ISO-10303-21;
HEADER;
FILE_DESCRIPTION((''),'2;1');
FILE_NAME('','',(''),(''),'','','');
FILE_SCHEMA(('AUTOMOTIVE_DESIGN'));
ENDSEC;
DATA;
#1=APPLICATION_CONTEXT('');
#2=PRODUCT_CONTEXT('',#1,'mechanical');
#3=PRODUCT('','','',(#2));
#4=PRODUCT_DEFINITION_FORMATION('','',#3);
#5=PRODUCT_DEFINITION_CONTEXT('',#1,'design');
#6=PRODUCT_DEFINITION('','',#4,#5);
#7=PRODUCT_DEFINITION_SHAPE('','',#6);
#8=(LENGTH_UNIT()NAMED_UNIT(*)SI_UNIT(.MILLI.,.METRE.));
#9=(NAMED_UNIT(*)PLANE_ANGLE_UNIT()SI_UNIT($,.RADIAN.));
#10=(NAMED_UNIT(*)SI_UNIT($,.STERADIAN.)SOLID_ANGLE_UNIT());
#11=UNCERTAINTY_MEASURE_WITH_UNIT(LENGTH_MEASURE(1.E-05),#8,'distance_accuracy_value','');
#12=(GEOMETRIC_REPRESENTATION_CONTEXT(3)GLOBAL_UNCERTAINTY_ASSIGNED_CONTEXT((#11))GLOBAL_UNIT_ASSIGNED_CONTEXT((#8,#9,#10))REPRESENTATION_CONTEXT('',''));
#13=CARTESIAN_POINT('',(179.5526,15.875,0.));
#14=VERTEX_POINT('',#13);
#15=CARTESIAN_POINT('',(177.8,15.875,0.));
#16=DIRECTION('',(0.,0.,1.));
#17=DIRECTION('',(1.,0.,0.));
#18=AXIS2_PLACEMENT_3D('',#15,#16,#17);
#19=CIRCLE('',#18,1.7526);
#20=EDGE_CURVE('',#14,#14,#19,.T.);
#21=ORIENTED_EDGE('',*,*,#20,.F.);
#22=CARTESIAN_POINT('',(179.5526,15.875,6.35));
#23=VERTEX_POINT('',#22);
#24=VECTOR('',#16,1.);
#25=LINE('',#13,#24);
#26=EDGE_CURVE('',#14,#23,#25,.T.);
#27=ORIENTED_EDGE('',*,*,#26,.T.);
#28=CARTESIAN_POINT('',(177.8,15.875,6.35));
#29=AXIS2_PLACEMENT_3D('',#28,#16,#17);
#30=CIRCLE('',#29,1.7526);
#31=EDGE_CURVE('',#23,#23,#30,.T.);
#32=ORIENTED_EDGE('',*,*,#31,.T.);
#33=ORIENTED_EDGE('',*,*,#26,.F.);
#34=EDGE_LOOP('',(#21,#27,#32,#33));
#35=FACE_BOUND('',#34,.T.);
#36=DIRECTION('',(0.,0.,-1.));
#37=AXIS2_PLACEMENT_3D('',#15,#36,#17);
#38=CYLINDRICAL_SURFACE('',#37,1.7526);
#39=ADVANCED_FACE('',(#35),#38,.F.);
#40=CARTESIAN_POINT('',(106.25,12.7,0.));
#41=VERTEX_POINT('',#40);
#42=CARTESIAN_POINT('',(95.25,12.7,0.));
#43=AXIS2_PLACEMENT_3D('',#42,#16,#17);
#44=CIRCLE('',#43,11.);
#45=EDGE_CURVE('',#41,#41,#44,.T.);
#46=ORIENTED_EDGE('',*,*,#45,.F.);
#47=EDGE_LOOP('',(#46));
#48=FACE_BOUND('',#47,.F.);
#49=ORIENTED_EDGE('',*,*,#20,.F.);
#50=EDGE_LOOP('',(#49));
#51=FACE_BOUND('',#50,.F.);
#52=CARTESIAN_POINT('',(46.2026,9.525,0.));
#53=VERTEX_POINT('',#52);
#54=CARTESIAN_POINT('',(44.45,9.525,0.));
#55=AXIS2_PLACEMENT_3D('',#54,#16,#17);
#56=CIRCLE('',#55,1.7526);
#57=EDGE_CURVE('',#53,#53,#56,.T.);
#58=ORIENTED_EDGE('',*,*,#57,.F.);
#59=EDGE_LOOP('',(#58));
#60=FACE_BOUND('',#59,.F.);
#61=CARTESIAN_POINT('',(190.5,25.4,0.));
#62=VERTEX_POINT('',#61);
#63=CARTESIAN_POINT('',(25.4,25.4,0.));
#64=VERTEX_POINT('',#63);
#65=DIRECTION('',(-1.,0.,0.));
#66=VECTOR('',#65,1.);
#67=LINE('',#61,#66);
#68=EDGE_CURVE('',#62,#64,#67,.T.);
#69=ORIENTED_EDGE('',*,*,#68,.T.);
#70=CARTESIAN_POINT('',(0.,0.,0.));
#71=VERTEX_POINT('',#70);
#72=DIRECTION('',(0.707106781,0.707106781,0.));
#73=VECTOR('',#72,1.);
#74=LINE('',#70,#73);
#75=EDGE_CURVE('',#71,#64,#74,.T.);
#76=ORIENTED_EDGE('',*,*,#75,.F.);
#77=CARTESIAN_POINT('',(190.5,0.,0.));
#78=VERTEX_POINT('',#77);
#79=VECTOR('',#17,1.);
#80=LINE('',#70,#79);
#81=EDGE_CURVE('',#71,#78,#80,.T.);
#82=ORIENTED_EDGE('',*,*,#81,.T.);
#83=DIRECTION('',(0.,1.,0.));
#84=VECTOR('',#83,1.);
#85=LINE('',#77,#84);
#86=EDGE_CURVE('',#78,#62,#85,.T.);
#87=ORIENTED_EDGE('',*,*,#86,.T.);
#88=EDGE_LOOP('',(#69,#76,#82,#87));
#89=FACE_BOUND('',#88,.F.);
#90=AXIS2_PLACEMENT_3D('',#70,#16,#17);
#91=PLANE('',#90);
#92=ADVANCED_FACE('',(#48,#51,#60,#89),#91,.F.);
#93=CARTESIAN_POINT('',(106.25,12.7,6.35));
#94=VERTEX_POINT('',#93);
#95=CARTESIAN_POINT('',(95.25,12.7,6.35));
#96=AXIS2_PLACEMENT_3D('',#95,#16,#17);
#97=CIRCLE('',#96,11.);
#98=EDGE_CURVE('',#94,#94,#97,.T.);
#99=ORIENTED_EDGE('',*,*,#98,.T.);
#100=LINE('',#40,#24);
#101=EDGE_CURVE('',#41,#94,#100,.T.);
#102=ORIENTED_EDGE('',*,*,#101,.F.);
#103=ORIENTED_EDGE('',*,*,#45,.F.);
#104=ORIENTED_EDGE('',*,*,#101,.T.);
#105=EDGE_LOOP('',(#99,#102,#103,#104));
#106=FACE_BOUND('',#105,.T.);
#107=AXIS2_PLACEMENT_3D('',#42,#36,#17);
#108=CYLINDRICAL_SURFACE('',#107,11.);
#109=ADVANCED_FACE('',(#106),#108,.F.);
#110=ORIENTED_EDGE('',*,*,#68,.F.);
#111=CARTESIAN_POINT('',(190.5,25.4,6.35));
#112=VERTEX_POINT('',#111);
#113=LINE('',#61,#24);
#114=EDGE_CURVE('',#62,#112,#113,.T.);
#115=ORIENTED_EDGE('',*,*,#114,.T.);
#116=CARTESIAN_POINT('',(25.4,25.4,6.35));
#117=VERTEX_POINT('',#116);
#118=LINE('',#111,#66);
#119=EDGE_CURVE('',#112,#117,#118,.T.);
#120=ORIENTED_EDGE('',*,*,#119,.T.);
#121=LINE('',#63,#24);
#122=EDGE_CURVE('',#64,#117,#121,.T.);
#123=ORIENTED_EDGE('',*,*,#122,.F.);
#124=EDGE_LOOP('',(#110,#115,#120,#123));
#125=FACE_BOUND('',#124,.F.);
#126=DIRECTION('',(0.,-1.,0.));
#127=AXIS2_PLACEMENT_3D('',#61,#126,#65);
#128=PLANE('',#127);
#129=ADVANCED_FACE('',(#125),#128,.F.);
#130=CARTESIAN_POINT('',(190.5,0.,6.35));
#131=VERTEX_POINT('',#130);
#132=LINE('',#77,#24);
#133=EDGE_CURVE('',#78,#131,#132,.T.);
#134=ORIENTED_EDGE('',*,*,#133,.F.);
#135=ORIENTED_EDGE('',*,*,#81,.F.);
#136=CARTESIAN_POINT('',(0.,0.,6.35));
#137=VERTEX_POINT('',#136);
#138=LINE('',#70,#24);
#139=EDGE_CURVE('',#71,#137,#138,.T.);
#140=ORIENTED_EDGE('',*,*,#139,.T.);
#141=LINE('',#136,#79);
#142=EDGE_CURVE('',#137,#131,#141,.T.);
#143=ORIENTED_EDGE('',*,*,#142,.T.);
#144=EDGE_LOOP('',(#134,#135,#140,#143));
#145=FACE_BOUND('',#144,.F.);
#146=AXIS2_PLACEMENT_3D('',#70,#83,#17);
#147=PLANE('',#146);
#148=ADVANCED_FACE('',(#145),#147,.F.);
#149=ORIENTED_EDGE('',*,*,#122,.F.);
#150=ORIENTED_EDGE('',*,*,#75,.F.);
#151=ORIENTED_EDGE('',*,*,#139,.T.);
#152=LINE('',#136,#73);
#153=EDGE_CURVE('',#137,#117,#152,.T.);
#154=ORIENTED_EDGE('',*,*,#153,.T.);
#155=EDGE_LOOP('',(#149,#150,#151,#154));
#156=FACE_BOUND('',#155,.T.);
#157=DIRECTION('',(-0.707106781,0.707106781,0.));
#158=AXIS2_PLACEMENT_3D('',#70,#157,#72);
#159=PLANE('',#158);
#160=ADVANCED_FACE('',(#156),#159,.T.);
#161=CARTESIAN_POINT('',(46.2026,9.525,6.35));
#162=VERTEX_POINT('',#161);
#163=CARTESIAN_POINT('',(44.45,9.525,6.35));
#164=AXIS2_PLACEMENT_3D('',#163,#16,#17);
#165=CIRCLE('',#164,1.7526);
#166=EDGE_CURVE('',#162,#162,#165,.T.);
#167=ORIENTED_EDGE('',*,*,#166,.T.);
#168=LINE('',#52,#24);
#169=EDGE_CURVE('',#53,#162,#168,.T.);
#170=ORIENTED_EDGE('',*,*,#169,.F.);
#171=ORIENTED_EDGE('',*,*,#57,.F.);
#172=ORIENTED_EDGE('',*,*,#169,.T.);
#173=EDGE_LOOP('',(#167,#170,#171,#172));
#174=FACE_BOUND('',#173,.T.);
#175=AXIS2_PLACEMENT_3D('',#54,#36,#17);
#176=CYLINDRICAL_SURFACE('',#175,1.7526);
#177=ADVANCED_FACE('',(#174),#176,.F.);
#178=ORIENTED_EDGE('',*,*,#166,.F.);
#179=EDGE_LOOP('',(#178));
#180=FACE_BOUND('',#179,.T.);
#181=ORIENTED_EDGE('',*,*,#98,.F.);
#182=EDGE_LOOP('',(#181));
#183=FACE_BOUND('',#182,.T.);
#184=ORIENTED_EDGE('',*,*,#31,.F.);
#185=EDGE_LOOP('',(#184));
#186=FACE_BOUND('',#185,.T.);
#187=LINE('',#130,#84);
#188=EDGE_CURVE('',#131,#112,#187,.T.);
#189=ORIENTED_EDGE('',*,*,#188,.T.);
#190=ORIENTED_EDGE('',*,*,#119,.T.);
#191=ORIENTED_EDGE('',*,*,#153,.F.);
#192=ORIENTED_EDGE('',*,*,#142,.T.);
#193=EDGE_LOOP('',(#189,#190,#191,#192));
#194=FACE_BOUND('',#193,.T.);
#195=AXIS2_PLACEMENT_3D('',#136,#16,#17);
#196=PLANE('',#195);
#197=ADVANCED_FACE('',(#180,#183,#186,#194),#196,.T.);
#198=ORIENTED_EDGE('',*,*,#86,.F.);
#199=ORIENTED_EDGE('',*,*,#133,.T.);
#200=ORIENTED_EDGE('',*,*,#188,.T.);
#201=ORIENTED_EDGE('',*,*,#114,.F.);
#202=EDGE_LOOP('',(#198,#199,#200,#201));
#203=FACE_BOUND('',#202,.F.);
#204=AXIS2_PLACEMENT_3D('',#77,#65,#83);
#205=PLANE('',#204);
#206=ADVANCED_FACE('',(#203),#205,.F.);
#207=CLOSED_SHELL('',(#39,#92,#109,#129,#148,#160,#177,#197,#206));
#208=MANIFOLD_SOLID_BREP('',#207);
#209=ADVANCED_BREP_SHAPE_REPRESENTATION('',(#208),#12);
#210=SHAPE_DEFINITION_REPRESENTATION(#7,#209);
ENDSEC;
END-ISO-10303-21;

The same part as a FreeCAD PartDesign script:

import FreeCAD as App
import Part
import Sketcher

V = App.Vector
Q = App.Units.Quantity


def add_polygon(sketch, points):
    """Adds a closed chain of lines whose ends are joined by coincident constraints."""
    first, n = sketch.GeometryCount, len(points)
    for a, b in zip(points, points[1:] + points[:1]):
        sketch.addGeometry(Part.LineSegment(App.Vector(*a, 0), App.Vector(*b, 0)), False)
    for i in range(n):
        sketch.addConstraint(Sketcher.Constraint("Coincident", first + i, 2, first + (i + 1) % n, 1))

doc = App.newDocument("Part")
body = doc.addObject("PartDesign::Body", "Body")

sketch1 = doc.addObject("Sketcher::SketchObject", "Sketch")
body.addObject(sketch1)
sketch1.AttachmentSupport = (doc.XY_Plane, [""])
sketch1.MapMode = "FlatFace"
add_polygon(sketch1, [(25.4, 25.4), (0, 0), (190.5, 0), (190.5, 25.4)])
sketch1.addGeometry(Part.Circle(V(44.5, 9.5, 0), V(0, 0, 1), 1.8), False)
sketch1.addGeometry(Part.Circle(V(95.2, 12.7, 0), V(0, 0, 1), 11), False)
sketch1.addGeometry(Part.Circle(V(177.8, 15.9, 0), V(0, 0, 1), 1.8), False)
sketch1.addConstraint([
    Sketcher.Constraint("Horizontal", 1),
    Sketcher.Constraint("Vertical", 2),
    Sketcher.Constraint("Horizontal", 3),
    Sketcher.Constraint("Coincident", 0, 2, -1, 1),
    Sketcher.Constraint("Equal", 4, 6),
    Sketcher.Constraint("DistanceY", 2, 1, 2, 2, Q("1 in")),
    Sketcher.Constraint("Diameter", 4, Q("0.138 in")),
    Sketcher.Constraint("DistanceX", 1, 1, 1, 2, Q("7.5 in")),
    Sketcher.Constraint("DistanceX", -1, 1, 3, 2, Q("1 in")),
    Sketcher.Constraint("DistanceX", 4, 3, 5, 3, Q("2 in")),
    Sketcher.Constraint("DistanceY", -1, 1, 5, 3, Q("0.5 in")),
    Sketcher.Constraint("DistanceX", 6, 3, 1, 2, Q("0.5 in")),
    Sketcher.Constraint("Diameter", 5, 22.0),
    Sketcher.Constraint("DistanceX", -1, 1, 4, 3, Q("1.75 in")),
    Sketcher.Constraint("DistanceY", -1, 1, 4, 3, Q("0.375 in")),
    Sketcher.Constraint("DistanceY", 6, 3, 2, 2, Q("0.375 in")),
])
pad1 = doc.addObject("PartDesign::Pad", "Pad")
body.addObject(pad1)
pad1.Profile = sketch1
pad1.Length = Q("0.25 in")

doc.recompute()
